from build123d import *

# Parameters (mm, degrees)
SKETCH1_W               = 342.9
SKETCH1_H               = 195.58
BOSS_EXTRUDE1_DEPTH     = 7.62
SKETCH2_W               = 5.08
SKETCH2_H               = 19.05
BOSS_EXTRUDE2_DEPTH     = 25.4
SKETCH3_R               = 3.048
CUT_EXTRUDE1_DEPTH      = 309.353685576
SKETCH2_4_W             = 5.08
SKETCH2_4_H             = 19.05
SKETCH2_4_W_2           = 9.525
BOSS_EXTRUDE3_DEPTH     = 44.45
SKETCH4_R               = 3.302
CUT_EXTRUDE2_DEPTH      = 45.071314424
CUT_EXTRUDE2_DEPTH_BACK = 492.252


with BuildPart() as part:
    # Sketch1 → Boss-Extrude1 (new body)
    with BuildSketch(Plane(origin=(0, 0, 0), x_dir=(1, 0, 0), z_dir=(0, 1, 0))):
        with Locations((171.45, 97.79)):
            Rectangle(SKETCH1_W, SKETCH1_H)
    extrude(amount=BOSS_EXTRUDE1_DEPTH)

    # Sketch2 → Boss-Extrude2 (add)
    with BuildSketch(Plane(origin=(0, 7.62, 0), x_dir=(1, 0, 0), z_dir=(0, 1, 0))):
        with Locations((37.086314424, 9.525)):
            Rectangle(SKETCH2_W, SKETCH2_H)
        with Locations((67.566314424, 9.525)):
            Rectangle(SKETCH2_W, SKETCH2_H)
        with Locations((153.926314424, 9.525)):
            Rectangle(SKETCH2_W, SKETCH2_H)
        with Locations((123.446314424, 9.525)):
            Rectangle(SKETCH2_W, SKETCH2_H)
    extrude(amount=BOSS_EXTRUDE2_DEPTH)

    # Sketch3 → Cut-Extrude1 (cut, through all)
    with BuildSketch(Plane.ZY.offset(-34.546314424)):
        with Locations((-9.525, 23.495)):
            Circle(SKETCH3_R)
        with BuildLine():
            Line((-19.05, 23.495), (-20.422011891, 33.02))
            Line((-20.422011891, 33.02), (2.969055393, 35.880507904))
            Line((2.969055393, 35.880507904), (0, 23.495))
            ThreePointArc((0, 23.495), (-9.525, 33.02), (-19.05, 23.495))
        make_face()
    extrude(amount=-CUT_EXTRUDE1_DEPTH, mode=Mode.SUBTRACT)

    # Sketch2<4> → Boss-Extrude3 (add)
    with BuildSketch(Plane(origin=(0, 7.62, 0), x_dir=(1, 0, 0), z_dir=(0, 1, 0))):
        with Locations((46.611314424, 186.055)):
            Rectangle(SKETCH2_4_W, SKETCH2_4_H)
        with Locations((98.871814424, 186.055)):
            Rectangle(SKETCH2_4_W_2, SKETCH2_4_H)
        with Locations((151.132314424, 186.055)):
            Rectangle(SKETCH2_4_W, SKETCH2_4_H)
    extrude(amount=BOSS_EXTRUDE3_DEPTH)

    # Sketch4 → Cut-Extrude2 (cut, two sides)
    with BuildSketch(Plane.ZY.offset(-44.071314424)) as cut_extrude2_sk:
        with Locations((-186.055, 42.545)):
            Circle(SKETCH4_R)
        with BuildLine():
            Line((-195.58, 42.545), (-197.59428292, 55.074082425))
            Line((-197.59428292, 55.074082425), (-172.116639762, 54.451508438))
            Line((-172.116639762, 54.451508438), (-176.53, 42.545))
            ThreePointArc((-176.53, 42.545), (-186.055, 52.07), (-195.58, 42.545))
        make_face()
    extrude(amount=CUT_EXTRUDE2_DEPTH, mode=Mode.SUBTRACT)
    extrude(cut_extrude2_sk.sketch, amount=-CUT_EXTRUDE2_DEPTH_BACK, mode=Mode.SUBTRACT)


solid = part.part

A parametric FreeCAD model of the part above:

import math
import FreeCAD as App
import Part
import Sketcher
Q = App.Units.Quantity

doc = App.newDocument("Part")
body = doc.addObject("PartDesign::Body", "Body")

# Sketch on XZ plane
sketch1 = doc.addObject("Sketcher::SketchObject", "Sketch")
body.addObject(sketch1)
sketch1.AttachmentSupport = (doc.XZ_Plane, [""])
sketch1.MapMode = "FlatFace"
sketch1.addGeometry([
    Part.LineSegment(App.Vector(0, -196, 0), App.Vector(0, 0, 0)),
    Part.LineSegment(App.Vector(0, 0, 0), App.Vector(343, 0, 0)),
    Part.LineSegment(App.Vector(343, 0, 0), App.Vector(343, -196, 0)),
    Part.LineSegment(App.Vector(343, -196, 0), App.Vector(0, -196, 0)),
], False)
sketch1.addConstraint([
    Sketcher.Constraint("Coincident", 0, 2, 1, 1),
    Sketcher.Constraint("Coincident", 1, 2, 2, 1),
    Sketcher.Constraint("Coincident", 2, 2, 3, 1),
    Sketcher.Constraint("Coincident", 3, 2, 0, 1),
    Sketcher.Constraint("Vertical", 0),
    Sketcher.Constraint("Horizontal", 1),
    Sketcher.Constraint("Vertical", 2),
    Sketcher.Constraint("Horizontal", 3),
    Sketcher.Constraint("Coincident", 0, 2, -1, 1),
    Sketcher.Constraint("DistanceX", 1, 1, 1, 2, Q("13.5 in")),
    Sketcher.Constraint("DistanceY", 0, 1, 0, 2, Q("7.7 in")),
])
pad1 = doc.addObject("PartDesign::Pad", "Pad")
body.addObject(pad1)
pad1.Profile = sketch1
pad1.Length = Q("0.3 in")
pad1.Reversed = True

# Sketch on XZ plane
sketch2 = doc.addObject("Sketcher::SketchObject", "Sketch001")
body.addObject(sketch2)
sketch2.AttachmentSupport = (doc.XZ_Plane, [""])
sketch2.MapMode = "FlatFace"
sketch2.AttachmentOffset = App.Placement(App.Vector(0, 0, -0.3 * 25.4), App.Rotation())
sketch2.addGeometry([
    Part.LineSegment(App.Vector(35, -19, 0), App.Vector(35, 0, 0)),  # 0
    Part.LineSegment(App.Vector(35, 0, 0), App.Vector(40, 0, 0)),  # 1
    Part.LineSegment(App.Vector(40, 0, 0), App.Vector(40, -19, 0)),  # 2
    Part.LineSegment(App.Vector(40, -19, 0), App.Vector(35, -19, 0)),  # 3
    Part.LineSegment(App.Vector(65, -19, 0), App.Vector(65, 0, 0)),  # 4
    Part.LineSegment(App.Vector(65, 0, 0), App.Vector(70, 0, 0)),  # 5
    Part.LineSegment(App.Vector(70, 0, 0), App.Vector(70, -19, 0)),  # 6
    Part.LineSegment(App.Vector(70, -19, 0), App.Vector(65, -19, 0)),  # 7
    Part.LineSegment(App.Vector(151, -19, 0), App.Vector(151, 0, 0)),  # 8
    Part.LineSegment(App.Vector(151, 0, 0), App.Vector(156, 0, 0)),  # 9
    Part.LineSegment(App.Vector(156, 0, 0), App.Vector(156, -19, 0)),  # 10
    Part.LineSegment(App.Vector(156, -19, 0), App.Vector(151, -19, 0)),  # 11
    Part.LineSegment(App.Vector(121, -19, 0), App.Vector(121, 0, 0)),  # 12
    Part.LineSegment(App.Vector(121, 0, 0), App.Vector(126, 0, 0)),  # 13
    Part.LineSegment(App.Vector(126, 0, 0), App.Vector(126, -19, 0)),  # 14
    Part.LineSegment(App.Vector(126, -19, 0), App.Vector(121, -19, 0)),  # 15
], False)
sketch2.addConstraint([
    Sketcher.Constraint("Coincident", 0, 2, 1, 1),
    Sketcher.Constraint("Coincident", 1, 2, 2, 1),
    Sketcher.Constraint("Coincident", 2, 2, 3, 1),
    Sketcher.Constraint("Coincident", 3, 2, 0, 1),
    Sketcher.Constraint("Coincident", 4, 2, 5, 1),
    Sketcher.Constraint("Coincident", 5, 2, 6, 1),
    Sketcher.Constraint("Coincident", 6, 2, 7, 1),
    Sketcher.Constraint("Coincident", 7, 2, 4, 1),
    Sketcher.Constraint("Coincident", 8, 2, 9, 1),
    Sketcher.Constraint("Coincident", 9, 2, 10, 1),
    Sketcher.Constraint("Coincident", 10, 2, 11, 1),
    Sketcher.Constraint("Coincident", 11, 2, 8, 1),
    Sketcher.Constraint("Coincident", 12, 2, 13, 1),
    Sketcher.Constraint("Coincident", 13, 2, 14, 1),
    Sketcher.Constraint("Coincident", 14, 2, 15, 1),
    Sketcher.Constraint("Coincident", 15, 2, 12, 1),
    Sketcher.Constraint("Vertical", 0),
    Sketcher.Constraint("Horizontal", 1),
    Sketcher.Constraint("Vertical", 2),
    Sketcher.Constraint("Horizontal", 3),
    Sketcher.Constraint("Vertical", 4),
    Sketcher.Constraint("Horizontal", 5),
    Sketcher.Constraint("Vertical", 6),
    Sketcher.Constraint("Horizontal", 7),
    Sketcher.Constraint("Vertical", 8),
    Sketcher.Constraint("Horizontal", 9),
    Sketcher.Constraint("Vertical", 10),
    Sketcher.Constraint("Horizontal", 11),
    Sketcher.Constraint("Vertical", 12),
    Sketcher.Constraint("Horizontal", 13),
    Sketcher.Constraint("Vertical", 14),
    Sketcher.Constraint("Horizontal", 15),
    Sketcher.Constraint("PointOnObject", 0, 2, -1),
    Sketcher.Constraint("PointOnObject", 4, 2, -1),
    Sketcher.Constraint("PointOnObject", 8, 2, -1),
    Sketcher.Constraint("PointOnObject", 12, 2, -1),
    Sketcher.Constraint("Horizontal", 3, 2, 6, 2),
    Sketcher.Constraint("Horizontal", 7, 2, 10, 2),
    Sketcher.Constraint("Horizontal", 11, 2, 14, 2),
    Sketcher.Constraint("Equal", 3, 5),
    Sketcher.Constraint("Equal", 7, 9),
    Sketcher.Constraint("Equal", 11, 13),
    Sketcher.Constraint("DistanceX", 1, 1, 1, 2, Q("0.2 in")),
    Sketcher.Constraint("DistanceX", 1, 2, 4, 2, Q("1 in")),
    Sketcher.Constraint("DistanceX", 5, 2, 12, 2, Q("2 in")),
    Sketcher.Constraint("DistanceX", 13, 2, 8, 2, Q("1 in")),
    Sketcher.Constraint("DistanceY", 0, 1, 0, 2, Q("0.75 in")),
    Sketcher.Constraint("DistanceX", -1, 1, 0, 2, 34.546314),
])
pad2 = doc.addObject("PartDesign::Pad", "Pad001")
body.addObject(pad2)
pad2.Profile = sketch2
pad2.Length = Q("1 in")
pad2.Reversed = True

# Sketch on YZ plane
sketch3 = doc.addObject("Sketcher::SketchObject", "Sketch002")
body.addObject(sketch3)
sketch3.AttachmentSupport = (doc.YZ_Plane, [""])
sketch3.MapMode = "FlatFace"
sketch3.AttachmentOffset = App.Placement(App.Vector(0, 0, 34.546314), App.Rotation())
sketch3.addGeometry([
    Part.Circle(App.Vector(23.5, -9.5, 0), App.Vector(0, 0, 1), 3),  # 0
    Part.LineSegment(App.Vector(33, -20.4, 0), App.Vector(23.5, -19.1, 0)),  # 1
    Part.ArcOfCircle(Part.Circle(App.Vector(23.5, -9.5, 0), App.Vector(0, 0, 1), 9.5), math.radians(-90), math.radians(90)),  # 2
    Part.LineSegment(App.Vector(23.5, 0, 0), App.Vector(35.9, 3, 0)),  # 3
    Part.LineSegment(App.Vector(35.9, 3, 0), App.Vector(33, -20.4, 0)),  # 4
], False)
sketch3.addConstraint([
    Sketcher.Constraint("Coincident", 1, 2, 2, 1),
    Sketcher.Constraint("Coincident", 2, 2, 3, 1),
    Sketcher.Constraint("Coincident", 3, 2, 4, 1),
    Sketcher.Constraint("Coincident", 4, 2, 1, 1),
    Sketcher.Constraint("Coincident", 2, 3, 0, 3),
    Sketcher.Constraint("PointOnObject", 2, 2, -1),
    Sketcher.Constraint("Vertical", 2, 3, 1, 2),
    Sketcher.Constraint("Vertical", 1, 2, 2, 2),
    Sketcher.Constraint("Diameter", 0, Q("0.24 in")),
    Sketcher.Constraint("Radius", 2, Q("0.375 in")),
    Sketcher.Constraint("DistanceX", -1, 1, 4, 2, Q("1.3 in")),
    Sketcher.Constraint("DistanceX", -1, 1, 0, 3, Q("0.925 in")),
    Sketcher.Constraint("Distance", 3, 12.736408),
    Sketcher.Constraint("DistanceY", 4, 2, -1, 1, 20.422012),
    Sketcher.Constraint("Distance", 4, 23.565325),
])
pocket1 = doc.addObject("PartDesign::Pocket", "Pocket")
body.addObject(pocket1)
pocket1.Profile = sketch3
pocket1.Type = "ThroughAll"
pocket1.Reversed = True

# Sketch on XZ plane
sketch4 = doc.addObject("Sketcher::SketchObject", "Sketch003")
body.addObject(sketch4)
sketch4.AttachmentSupport = (doc.XZ_Plane, [""])
sketch4.MapMode = "FlatFace"
sketch4.AttachmentOffset = App.Placement(App.Vector(0, 0, -0.3 * 25.4), App.Rotation())
sketch4.addGeometry([
    Part.LineSegment(App.Vector(44, -196, 0), App.Vector(44, -177, 0)),  # 0
    Part.LineSegment(App.Vector(44, -177, 0), App.Vector(49, -177, 0)),  # 1
    Part.LineSegment(App.Vector(49, -177, 0), App.Vector(49, -196, 0)),  # 2
    Part.LineSegment(App.Vector(49, -196, 0), App.Vector(44, -196, 0)),  # 3
    Part.LineSegment(App.Vector(94, -196, 0), App.Vector(94, -177, 0)),  # 4
    Part.LineSegment(App.Vector(94, -177, 0), App.Vector(104, -177, 0)),  # 5
    Part.LineSegment(App.Vector(104, -177, 0), App.Vector(104, -196, 0)),  # 6
    Part.LineSegment(App.Vector(104, -196, 0), App.Vector(94, -196, 0)),  # 7
    Part.LineSegment(App.Vector(149, -196, 0), App.Vector(149, -177, 0)),  # 8
    Part.LineSegment(App.Vector(149, -177, 0), App.Vector(154, -177, 0)),  # 9
    Part.LineSegment(App.Vector(154, -177, 0), App.Vector(154, -196, 0)),  # 10
    Part.LineSegment(App.Vector(154, -196, 0), App.Vector(149, -196, 0)),  # 11
], False)
sketch4.addConstraint([
    Sketcher.Constraint("Coincident", 0, 2, 1, 1),
    Sketcher.Constraint("Coincident", 1, 2, 2, 1),
    Sketcher.Constraint("Coincident", 2, 2, 3, 1),
    Sketcher.Constraint("Coincident", 3, 2, 0, 1),
    Sketcher.Constraint("Coincident", 4, 2, 5, 1),
    Sketcher.Constraint("Coincident", 5, 2, 6, 1),
    Sketcher.Constraint("Coincident", 6, 2, 7, 1),
    Sketcher.Constraint("Coincident", 7, 2, 4, 1),
    Sketcher.Constraint("Coincident", 8, 2, 9, 1),
    Sketcher.Constraint("Coincident", 9, 2, 10, 1),
    Sketcher.Constraint("Coincident", 10, 2, 11, 1),
    Sketcher.Constraint("Coincident", 11, 2, 8, 1),
    Sketcher.Constraint("Vertical", 0),
    Sketcher.Constraint("Horizontal", 1),
    Sketcher.Constraint("Vertical", 2),
    Sketcher.Constraint("Horizontal", 3),
    Sketcher.Constraint("Vertical", 4),
    Sketcher.Constraint("Horizontal", 5),
    Sketcher.Constraint("Vertical", 6),
    Sketcher.Constraint("Horizontal", 7),
    Sketcher.Constraint("Vertical", 8),
    Sketcher.Constraint("Horizontal", 9),
    Sketcher.Constraint("Vertical", 10),
    Sketcher.Constraint("Horizontal", 11),
    Sketcher.Constraint("Horizontal", 1, 2, 4, 2),
    Sketcher.Constraint("Horizontal", 3, 2, 6, 2),
    Sketcher.Constraint("Horizontal", 5, 2, 8, 2),
    Sketcher.Constraint("Horizontal", 7, 2, 10, 2),
    Sketcher.Constraint("Equal", 3, 9),
    Sketcher.Constraint("DistanceX", 1, 1, 1, 2, Q("0.2 in")),
    Sketcher.Constraint("DistanceY", 0, 1, 0, 2, Q("0.75 in")),
    Sketcher.Constraint("DistanceY", 2, 2, -1, 1, Q("7.7 in")),
    Sketcher.Constraint("DistanceX", 5, 1, 5, 2, Q("0.375 in")),
    Sketcher.Constraint("DistanceX", 1, 2, 4, 2, Q("1.77 in")),
    Sketcher.Constraint("DistanceX", 5, 2, 8, 2, Q("1.77 in")),
    Sketcher.Constraint("DistanceX", -1, 1, 0, 2, 44.071314),
])
pad3 = doc.addObject("PartDesign::Pad", "Pad002")
body.addObject(pad3)
pad3.Profile = sketch4
pad3.Length = Q("1.75 in")
pad3.Reversed = True

# Sketch on YZ plane
sketch5 = doc.addObject("Sketcher::SketchObject", "Sketch004")
body.addObject(sketch5)
sketch5.AttachmentSupport = (doc.YZ_Plane, [""])
sketch5.MapMode = "FlatFace"
sketch5.AttachmentOffset = App.Placement(App.Vector(0, 0, 44.071314), App.Rotation())
sketch5.addGeometry([
    Part.Circle(App.Vector(42.5, -186.1, 0), App.Vector(0, 0, 1), 3.3),  # 0
    Part.LineSegment(App.Vector(55.1, -197.6, 0), App.Vector(42.5, -195.6, 0)),  # 1
    Part.ArcOfCircle(Part.Circle(App.Vector(42.5, -186.1, 0), App.Vector(0, 0, 1), 9.5), math.radians(-90), math.radians(90)),  # 2
    Part.LineSegment(App.Vector(42.5, -176.5, 0), App.Vector(54.5, -172.1, 0)),  # 3
    Part.LineSegment(App.Vector(54.5, -172.1, 0), App.Vector(55.1, -197.6, 0)),  # 4
], False)
sketch5.addConstraint([
    Sketcher.Constraint("Coincident", 1, 2, 2, 1),
    Sketcher.Constraint("Coincident", 2, 2, 3, 1),
    Sketcher.Constraint("Coincident", 3, 2, 4, 1),
    Sketcher.Constraint("Coincident", 4, 2, 1, 1),
    Sketcher.Constraint("Coincident", 2, 3, 0, 3),
    Sketcher.Constraint("Vertical", 2, 3, 1, 2),
    Sketcher.Constraint("Vertical", 1, 2, 2, 2),
    Sketcher.Constraint("Diameter", 0, Q("0.26 in")),
    Sketcher.Constraint("Radius", 2, Q("0.375 in")),
    Sketcher.Constraint("DistanceY", 1, 2, -1, 1, Q("7.7 in")),
    Sketcher.Constraint("DistanceX", -1, 1, 0, 3, Q("1.675 in")),
    Sketcher.Constraint("Distance", 4, 25.485249),
    Sketcher.Constraint("DistanceX", -1, 1, 3, 2, 54.451508),
    Sketcher.Constraint("DistanceY", 3, 2, -1, 1, 172.11664),
    Sketcher.Constraint("Distance", 1, 12.689966),
])
pocket2 = doc.addObject("PartDesign::Pocket", "Pocket001")
body.addObject(pocket2)
pocket2.Profile = sketch5
pocket2.Type = "ThroughAll"
pocket2.Midplane = True

doc.recompute()
